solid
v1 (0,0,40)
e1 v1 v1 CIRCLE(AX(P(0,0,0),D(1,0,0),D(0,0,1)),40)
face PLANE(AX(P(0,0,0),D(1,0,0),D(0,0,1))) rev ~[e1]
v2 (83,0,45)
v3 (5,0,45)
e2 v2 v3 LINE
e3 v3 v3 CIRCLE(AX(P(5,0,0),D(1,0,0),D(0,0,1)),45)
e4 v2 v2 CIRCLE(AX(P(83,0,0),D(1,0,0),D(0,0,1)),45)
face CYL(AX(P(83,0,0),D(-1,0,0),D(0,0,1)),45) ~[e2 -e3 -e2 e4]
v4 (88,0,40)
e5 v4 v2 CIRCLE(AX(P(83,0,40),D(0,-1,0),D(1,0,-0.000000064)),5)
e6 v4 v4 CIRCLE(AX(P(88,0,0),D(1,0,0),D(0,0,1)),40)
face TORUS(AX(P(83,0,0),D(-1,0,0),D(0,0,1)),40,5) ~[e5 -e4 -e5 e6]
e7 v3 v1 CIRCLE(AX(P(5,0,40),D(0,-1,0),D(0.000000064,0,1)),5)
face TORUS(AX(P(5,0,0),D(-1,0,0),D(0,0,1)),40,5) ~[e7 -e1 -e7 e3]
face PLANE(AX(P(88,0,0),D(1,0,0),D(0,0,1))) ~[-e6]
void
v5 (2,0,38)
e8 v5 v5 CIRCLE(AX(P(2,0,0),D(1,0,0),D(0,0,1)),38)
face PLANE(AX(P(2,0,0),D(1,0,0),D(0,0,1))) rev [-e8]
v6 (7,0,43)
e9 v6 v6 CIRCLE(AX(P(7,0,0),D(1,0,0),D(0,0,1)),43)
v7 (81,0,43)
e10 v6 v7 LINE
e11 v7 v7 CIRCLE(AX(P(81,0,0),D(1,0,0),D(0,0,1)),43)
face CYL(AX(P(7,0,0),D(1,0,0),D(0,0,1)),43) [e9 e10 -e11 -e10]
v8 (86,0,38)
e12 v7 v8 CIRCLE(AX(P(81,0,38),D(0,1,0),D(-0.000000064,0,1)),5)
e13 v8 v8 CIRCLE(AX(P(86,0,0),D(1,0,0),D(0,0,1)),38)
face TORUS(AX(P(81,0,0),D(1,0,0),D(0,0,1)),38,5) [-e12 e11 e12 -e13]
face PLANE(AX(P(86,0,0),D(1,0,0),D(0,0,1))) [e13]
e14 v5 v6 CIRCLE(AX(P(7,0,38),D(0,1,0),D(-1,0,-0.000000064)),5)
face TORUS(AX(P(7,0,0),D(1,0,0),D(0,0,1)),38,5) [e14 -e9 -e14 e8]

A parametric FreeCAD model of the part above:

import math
import FreeCAD as App
import Part
import Sketcher

V = App.Vector
Q = App.Units.Quantity

doc = App.newDocument("Part")
body = doc.addObject("PartDesign::Body", "Body")

sketch1 = body.newObject("Sketcher::SketchObject", "Sketch")
sketch1.AttachmentSupport = (doc.getObject("XZ_Plane"), [""])
sketch1.MapMode = "FlatFace"
sketch1.addGeometry([
    Part.LineSegment(V(0, 40, 0), V(0, 0, 0)),
    Part.LineSegment(V(0, 0, 0), V(2, 0, 0)),
    Part.LineSegment(V(2, 0, 0), V(2, 38, 0)),
    Part.ArcOfCircle(Part.Circle(V(7, 38, 0), V(0, 0, 1), 5), math.radians(90), math.radians(180)),
    Part.LineSegment(V(7, 43, 0), V(81, 43, 0)),
    Part.ArcOfCircle(Part.Circle(V(81, 38, 0), V(0, 0, 1), 5), math.radians(0), math.radians(90)),
    Part.LineSegment(V(86, 38, 0), V(86, 0, 0)),
    Part.LineSegment(V(86, 0, 0), V(88, 0, 0)),
    Part.LineSegment(V(88, 0, 0), V(88, 40, 0)),
    Part.ArcOfCircle(Part.Circle(V(83, 40, 0), V(0, 0, 1), 5), math.radians(0), math.radians(90)),
    Part.LineSegment(V(83, 45, 0), V(5, 45, 0)),
    Part.ArcOfCircle(Part.Circle(V(5, 40, 0), V(0, 0, 1), 5), math.radians(90), math.radians(180)),
], False)
sketch1.addConstraint([
    Sketcher.Constraint("Coincident", 0, 2, 1, 1),
    Sketcher.Constraint("Coincident", 1, 2, 2, 1),
    Sketcher.Constraint("Tangent", 2, 2, 3, 2),
    Sketcher.Constraint("Tangent", 3, 1, 4, 1),
    Sketcher.Constraint("Tangent", 4, 2, 5, 2),
    Sketcher.Constraint("Tangent", 5, 1, 6, 1),
    Sketcher.Constraint("Coincident", 6, 2, 7, 1),
    Sketcher.Constraint("Coincident", 7, 2, 8, 1),
    Sketcher.Constraint("Tangent", 8, 2, 9, 1),
    Sketcher.Constraint("Tangent", 9, 2, 10, 1),
    Sketcher.Constraint("Tangent", 10, 2, 11, 1),
    Sketcher.Constraint("Tangent", 11, 2, 0, 1),
    Sketcher.Constraint("Vertical", 0),
    Sketcher.Constraint("Horizontal", 1),
    Sketcher.Constraint("Vertical", 2),
    Sketcher.Constraint("Horizontal", 4),
    Sketcher.Constraint("Vertical", 6),
    Sketcher.Constraint("Horizontal", 7),
    Sketcher.Constraint("Vertical", 8),
    Sketcher.Constraint("Horizontal", 10),
    Sketcher.Constraint("Coincident", 0, 2, -1, 1),
    Sketcher.Constraint("Equal", 3, 5),
    Sketcher.Constraint("Equal", 5, 9),
    Sketcher.Constraint("Equal", 9, 11),
    Sketcher.Constraint("PointOnObject", 6, 2, -1),
    Sketcher.Constraint("Equal", 1, 7),
    Sketcher.Constraint("Radius", 3, Q("5 mm")),
    Sketcher.Constraint("DistanceX", 1, 1, 1, 2, Q("2 mm")),
    Sketcher.Constraint("DistanceX", 4, 1, 4, 2, Q("74 mm")),
    Sketcher.Constraint("DistanceY", 0, 2, 0, 1, Q("40 mm")),
    Sketcher.Constraint("DistanceY", 2, 1, 2, 2, Q("38 mm")),
])
revolution = body.newObject("PartDesign::Revolution", "Revolution")
revolution.Profile = sketch1
revolution.ReferenceAxis = (sketch1, ["H_Axis"])
revolution.Angle = 360

doc.recompute()
